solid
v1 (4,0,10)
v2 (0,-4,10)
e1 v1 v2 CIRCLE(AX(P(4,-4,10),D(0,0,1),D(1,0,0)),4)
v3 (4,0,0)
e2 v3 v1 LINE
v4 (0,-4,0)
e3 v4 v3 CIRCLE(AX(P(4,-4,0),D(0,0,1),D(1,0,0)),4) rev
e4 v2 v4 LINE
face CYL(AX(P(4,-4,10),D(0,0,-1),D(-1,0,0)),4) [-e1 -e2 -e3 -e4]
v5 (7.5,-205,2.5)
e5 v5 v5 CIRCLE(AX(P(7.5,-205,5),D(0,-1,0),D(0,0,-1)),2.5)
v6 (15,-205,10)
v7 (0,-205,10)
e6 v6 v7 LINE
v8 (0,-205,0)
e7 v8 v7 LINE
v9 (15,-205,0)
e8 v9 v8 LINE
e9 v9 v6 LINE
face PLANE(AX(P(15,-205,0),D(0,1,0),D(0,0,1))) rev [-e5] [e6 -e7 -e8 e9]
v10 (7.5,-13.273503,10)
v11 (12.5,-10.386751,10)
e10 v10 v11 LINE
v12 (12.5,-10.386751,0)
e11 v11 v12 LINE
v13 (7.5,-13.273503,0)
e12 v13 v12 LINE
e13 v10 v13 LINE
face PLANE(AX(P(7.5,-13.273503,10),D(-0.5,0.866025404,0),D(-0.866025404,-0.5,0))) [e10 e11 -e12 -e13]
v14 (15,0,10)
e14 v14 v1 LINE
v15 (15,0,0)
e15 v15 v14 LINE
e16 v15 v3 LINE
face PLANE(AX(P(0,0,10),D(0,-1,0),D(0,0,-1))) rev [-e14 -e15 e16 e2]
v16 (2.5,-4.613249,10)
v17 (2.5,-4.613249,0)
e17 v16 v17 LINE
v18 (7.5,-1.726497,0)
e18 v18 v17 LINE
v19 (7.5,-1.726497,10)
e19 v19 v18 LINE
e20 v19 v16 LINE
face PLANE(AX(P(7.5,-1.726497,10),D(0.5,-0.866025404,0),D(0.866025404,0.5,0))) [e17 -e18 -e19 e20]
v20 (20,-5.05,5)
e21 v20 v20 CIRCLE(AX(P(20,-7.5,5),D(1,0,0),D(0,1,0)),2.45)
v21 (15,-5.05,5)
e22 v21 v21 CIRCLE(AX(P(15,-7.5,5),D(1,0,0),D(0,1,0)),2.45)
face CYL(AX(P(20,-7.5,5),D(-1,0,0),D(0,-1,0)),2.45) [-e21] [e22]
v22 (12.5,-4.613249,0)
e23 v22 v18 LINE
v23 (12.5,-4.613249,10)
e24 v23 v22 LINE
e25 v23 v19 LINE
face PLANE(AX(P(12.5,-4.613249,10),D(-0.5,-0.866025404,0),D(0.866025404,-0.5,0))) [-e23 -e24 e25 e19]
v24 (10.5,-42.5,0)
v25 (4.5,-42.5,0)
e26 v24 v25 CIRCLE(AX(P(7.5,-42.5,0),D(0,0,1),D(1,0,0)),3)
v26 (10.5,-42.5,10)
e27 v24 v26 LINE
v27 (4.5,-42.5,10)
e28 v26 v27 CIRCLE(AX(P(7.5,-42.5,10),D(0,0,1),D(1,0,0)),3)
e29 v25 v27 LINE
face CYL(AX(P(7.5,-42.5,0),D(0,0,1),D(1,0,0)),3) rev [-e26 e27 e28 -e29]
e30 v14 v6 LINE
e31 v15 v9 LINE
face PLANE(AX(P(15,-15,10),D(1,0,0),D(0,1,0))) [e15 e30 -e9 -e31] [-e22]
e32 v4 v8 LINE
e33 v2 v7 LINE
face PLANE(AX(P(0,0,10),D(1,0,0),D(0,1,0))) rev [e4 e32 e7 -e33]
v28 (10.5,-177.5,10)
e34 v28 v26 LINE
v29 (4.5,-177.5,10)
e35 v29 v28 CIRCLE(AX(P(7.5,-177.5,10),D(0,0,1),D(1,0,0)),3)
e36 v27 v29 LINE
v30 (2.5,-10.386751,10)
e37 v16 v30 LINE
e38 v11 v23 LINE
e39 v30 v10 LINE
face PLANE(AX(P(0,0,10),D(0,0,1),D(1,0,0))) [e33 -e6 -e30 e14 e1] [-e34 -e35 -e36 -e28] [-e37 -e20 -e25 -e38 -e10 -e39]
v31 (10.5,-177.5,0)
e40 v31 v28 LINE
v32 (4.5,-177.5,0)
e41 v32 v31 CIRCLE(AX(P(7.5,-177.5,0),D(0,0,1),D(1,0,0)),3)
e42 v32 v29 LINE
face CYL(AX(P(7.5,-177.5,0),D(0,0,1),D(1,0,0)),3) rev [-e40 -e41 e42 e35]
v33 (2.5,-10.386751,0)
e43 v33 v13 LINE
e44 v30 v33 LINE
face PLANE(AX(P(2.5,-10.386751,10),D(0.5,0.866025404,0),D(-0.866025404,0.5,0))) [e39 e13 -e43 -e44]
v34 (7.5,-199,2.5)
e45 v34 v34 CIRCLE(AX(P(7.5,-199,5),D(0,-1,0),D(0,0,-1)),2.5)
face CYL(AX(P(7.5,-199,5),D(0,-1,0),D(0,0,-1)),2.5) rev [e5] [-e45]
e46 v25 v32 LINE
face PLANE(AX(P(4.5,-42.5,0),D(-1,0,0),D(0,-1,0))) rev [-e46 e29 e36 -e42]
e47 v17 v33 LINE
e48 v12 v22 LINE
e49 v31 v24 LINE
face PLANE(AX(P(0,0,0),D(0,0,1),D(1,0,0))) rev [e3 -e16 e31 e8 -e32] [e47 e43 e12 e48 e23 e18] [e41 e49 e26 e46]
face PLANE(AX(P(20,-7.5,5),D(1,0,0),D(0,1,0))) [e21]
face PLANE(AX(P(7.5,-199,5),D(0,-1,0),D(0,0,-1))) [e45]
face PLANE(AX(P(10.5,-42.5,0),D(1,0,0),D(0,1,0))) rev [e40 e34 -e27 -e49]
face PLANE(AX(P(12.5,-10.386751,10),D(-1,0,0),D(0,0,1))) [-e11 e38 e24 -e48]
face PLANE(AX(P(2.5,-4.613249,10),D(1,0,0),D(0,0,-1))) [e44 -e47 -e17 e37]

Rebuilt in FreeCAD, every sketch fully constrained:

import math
import FreeCAD as App
import Part
import Sketcher
from FreeCAD import Vector
Q = App.Units.Quantity


def edges_at(feature, points):
    """Names of the edges that pass closest to the given points."""
    edges = feature.Shape.Edges
    near = lambda p: min(range(len(edges)), key=lambda i: edges[i].distToShape(Part.Vertex(*p))[0])
    return sorted({f"Edge{near(p) + 1}" for p in points})


def add_polygon(sketch, points):
    """Adds a closed chain of lines whose ends are joined by coincident constraints."""
    first, n = sketch.GeometryCount, len(points)
    for a, b in zip(points, points[1:] + points[:1]):
        sketch.addGeometry(Part.LineSegment(App.Vector(*a, 0), App.Vector(*b, 0)), False)
    for i in range(n):
        sketch.addConstraint(Sketcher.Constraint("Coincident", first + i, 2, first + (i + 1) % n, 1))

doc = App.newDocument("Part")
body = doc.addObject("PartDesign::Body", "Body")

sketch1 = doc.addObject("Sketcher::SketchObject", "Sketch")
body.addObject(sketch1)
sketch1.AttachmentSupport = (doc.XY_Plane, [""])
sketch1.MapMode = "FlatFace"
add_polygon(sketch1, [(0, 0), (0, -220), (220, -220), (220, 0)])
add_polygon(sketch1, [(12.5, -215.386751), (7.5, -218.273503), (2.5, -215.386751), (2.5, -209.613249), (7.5, -206.726497), (12.5, -209.613249)])
add_polygon(sketch1, [(217.5, -215.386751), (212.5, -218.273503), (207.5, -215.386751), (207.5, -209.613249), (212.5, -206.726497), (217.5, -209.613249)])
add_polygon(sketch1, [(205, -205), (15, -205), (15, -15), (205, -15)])
add_polygon(sketch1, [(12.5, -10.386751), (7.5, -13.273503), (2.5, -10.386751), (2.5, -4.613249), (7.5, -1.726497), (12.5, -4.613249)])
add_polygon(sketch1, [(217.5, -10.386751), (212.5, -13.273503), (207.5, -10.386751), (207.5, -4.613249), (212.5, -1.726497), (217.5, -4.613249)])
sketch1.addConstraint([
    Sketcher.Constraint("Vertical", 0),
    Sketcher.Constraint("Horizontal", 1),
    Sketcher.Constraint("Vertical", 2),
    Sketcher.Constraint("Horizontal", 3),
    Sketcher.Constraint("Vertical", 6),
    Sketcher.Constraint("Vertical", 9),
    Sketcher.Constraint("Vertical", 12),
    Sketcher.Constraint("Vertical", 15),
    Sketcher.Constraint("Horizontal", 16),
    Sketcher.Constraint("Vertical", 17),
    Sketcher.Constraint("Horizontal", 18),
    Sketcher.Constraint("Vertical", 19),
    Sketcher.Constraint("Vertical", 22),
    Sketcher.Constraint("Vertical", 25),
    Sketcher.Constraint("Vertical", 28),
    Sketcher.Constraint("Vertical", 31),
    Sketcher.Constraint("Coincident", 3, 2, -1, 1),
    Sketcher.Constraint("Parallel", 4, 7),
    Sketcher.Constraint("Parallel", 5, 8),
    Sketcher.Constraint("Parallel", 7, 10),
    Sketcher.Constraint("Parallel", 8, 11),
    Sketcher.Constraint("Parallel", 10, 13),
    Sketcher.Constraint("Parallel", 11, 14),
    Sketcher.Constraint("Parallel", 13, 20),
    Sketcher.Constraint("Parallel", 14, 21),
    Sketcher.Constraint("Parallel", 20, 23),
    Sketcher.Constraint("Parallel", 21, 24),
    Sketcher.Constraint("Parallel", 23, 26),
    Sketcher.Constraint("Parallel", 24, 27),
    Sketcher.Constraint("Parallel", 26, 29),
    Sketcher.Constraint("Parallel", 27, 30),
    Sketcher.Constraint("Horizontal", 6, 2, 8, 2),
    Sketcher.Constraint("Horizontal", 5, 2, 9, 2),
    Sketcher.Constraint("Horizontal", 4, 2, 10, 2),
    Sketcher.Constraint("Horizontal", 9, 2, 11, 2),
    Sketcher.Constraint("Horizontal", 8, 2, 12, 2),
    Sketcher.Constraint("Horizontal", 7, 2, 13, 2),
    Sketcher.Constraint("Horizontal", 12, 2, 14, 2),
    Sketcher.Constraint("Horizontal", 22, 2, 24, 2),
    Sketcher.Constraint("Horizontal", 21, 2, 25, 2),
    Sketcher.Constraint("Horizontal", 20, 2, 26, 2),
    Sketcher.Constraint("Horizontal", 25, 2, 27, 2),
    Sketcher.Constraint("Horizontal", 24, 2, 28, 2),
    Sketcher.Constraint("Horizontal", 23, 2, 29, 2),
    Sketcher.Constraint("Horizontal", 28, 2, 30, 2),
    Sketcher.Constraint("Vertical", 4, 2, 7, 2),
    Sketcher.Constraint("Vertical", 7, 2, 20, 2),
    Sketcher.Constraint("Vertical", 6, 2, 21, 2),
    Sketcher.Constraint("Vertical", 13, 2, 26, 2),
    Sketcher.Constraint("Equal", 3, 0),
    Sketcher.Constraint("Equal", 18, 17),
    Sketcher.Constraint("Equal", 15, 22),
    Sketcher.Constraint("DistanceX", 1, 1, 1, 2, Q("220 mm")),
    Sketcher.Constraint("DistanceX", 16, 2, 16, 1, Q("190 mm")),
    Sketcher.Constraint("Angle", 4, Q("-150 deg")),
    Sketcher.Constraint("DistanceX", -1, 1, 16, 2, Q("15 mm")),
    Sketcher.Constraint("DistanceY", 16, 2, -1, 1, Q("205 mm")),
    Sketcher.Constraint("DistanceX", 5, 2, 4, 2, Q("5 mm")),
    Sketcher.Constraint("DistanceX", 9, 2, 10, 2, Q("200 mm")),
    Sketcher.Constraint("DistanceX", -1, 1, 4, 2, Q("7.5 mm")),
    Sketcher.Constraint("DistanceY", 6, 1, 6, 2, Q("5.773503 mm")),
    Sketcher.Constraint("DistanceY", 5, 2, -1, 1, Q("215.386751 mm")),
    Sketcher.Constraint("DistanceY", 21, 2, -1, 1, Q("10.386751 mm")),
])
pad1 = doc.addObject("PartDesign::Pad", "Pad")
body.addObject(pad1)
pad1.Profile = sketch1
pad1.Length = 10
doc.recompute()

fillet = doc.addObject("PartDesign::Fillet", "Fillet")
body.addObject(fillet)
fillet.Base = (pad1, edges_at(pad1, [
    (0, 0, 5),
    (220, 0, 5),
    (220, -220, 5),
    (0, -220, 5),
]))
fillet.Radius = 4

sketch2 = doc.addObject("Sketcher::SketchObject", "Sketch001")
body.addObject(sketch2)
sketch2.AttachmentSupport = (doc.XY_Plane, [""])
sketch2.MapMode = "FlatFace"
sketch2.AttachmentOffset = App.Placement(Vector(0, 0, 10), App.Rotation())
sketch2.addGeometry([
    Part.LineSegment(Vector(177.5, -4.5, 0), Vector(42.5, -4.5, 0)),
    Part.ArcOfCircle(Part.Circle(Vector(42.5, -7.5, 0), Vector(0, 0, 1), 3), math.radians(90), math.radians(270)),
    Part.LineSegment(Vector(42.5, -10.5, 0), Vector(177.5, -10.5, 0)),
    Part.ArcOfCircle(Part.Circle(Vector(177.5, -7.5, 0), Vector(0, 0, 1), 3), math.radians(-90), math.radians(90)),
    Part.LineSegment(Vector(42.5, -215.5, 0), Vector(177.5, -215.5, 0)),
    Part.ArcOfCircle(Part.Circle(Vector(177.5, -212.5, 0), Vector(0, 0, 1), 3), math.radians(-90), math.radians(90)),
    Part.LineSegment(Vector(177.5, -209.5, 0), Vector(42.5, -209.5, 0)),
    Part.ArcOfCircle(Part.Circle(Vector(42.5, -212.5, 0), Vector(0, 0, 1), 3), math.radians(90), math.radians(270)),
], False)
sketch2.addConstraint([
    Sketcher.Constraint("Tangent", 0, 2, 1, 1),
    Sketcher.Constraint("Tangent", 1, 2, 2, 1),
    Sketcher.Constraint("Tangent", 2, 2, 3, 1),
    Sketcher.Constraint("Tangent", 3, 2, 0, 1),
    Sketcher.Constraint("Tangent", 4, 2, 5, 1),
    Sketcher.Constraint("Tangent", 5, 2, 6, 1),
    Sketcher.Constraint("Tangent", 6, 2, 7, 1),
    Sketcher.Constraint("Tangent", 7, 2, 4, 1),
    Sketcher.Constraint("Horizontal", 0),
    Sketcher.Constraint("Horizontal", 2),
    Sketcher.Constraint("Horizontal", 4),
    Sketcher.Constraint("Horizontal", 6),
    Sketcher.Constraint("Equal", 3, 5),
    Sketcher.Constraint("Vertical", 3, 3, 5, 3),
    Sketcher.Constraint("Vertical", 1, 3, 7, 3),
    Sketcher.Constraint("Radius", 1, Q("3 mm")),
    Sketcher.Constraint("DistanceX", 0, 2, 0, 1, Q("135 mm")),
    Sketcher.Constraint("DistanceY", 5, 3, 3, 3, Q("205 mm")),
    Sketcher.Constraint("DistanceX", -1, 1, 1, 3, Q("42.5 mm")),
    Sketcher.Constraint("DistanceY", 1, 3, -1, 1, Q("7.5 mm")),
])
pocket1 = doc.addObject("PartDesign::Pocket", "Pocket")
body.addObject(pocket1)
pocket1.Profile = sketch2
pocket1.Length = 10

sketch3 = doc.addObject("Sketcher::SketchObject", "Sketch002")
body.addObject(sketch3)
sketch3.AttachmentSupport = (doc.XY_Plane, [""])
sketch3.MapMode = "FlatFace"
sketch3.AttachmentOffset = App.Placement(Vector(0, 0, 10), App.Rotation())
sketch3.addGeometry([
    Part.LineSegment(Vector(10.5, -177.5, 0), Vector(10.5, -42.5, 0)),
    Part.ArcOfCircle(Part.Circle(Vector(7.5, -42.5, 0), Vector(0, 0, 1), 3), math.radians(0), math.radians(180)),
    Part.LineSegment(Vector(4.5, -42.5, 0), Vector(4.5, -177.5, 0)),
    Part.ArcOfCircle(Part.Circle(Vector(7.5, -177.5, 0), Vector(0, 0, 1), 3), math.radians(180), math.radians(360)),
    Part.LineSegment(Vector(209.5, -42.5, 0), Vector(209.5, -177.5, 0)),
    Part.ArcOfCircle(Part.Circle(Vector(212.5, -177.5, 0), Vector(0, 0, 1), 3), math.radians(180), math.radians(360)),
    Part.LineSegment(Vector(215.5, -177.5, 0), Vector(215.5, -42.5, 0)),
    Part.ArcOfCircle(Part.Circle(Vector(212.5, -42.5, 0), Vector(0, 0, 1), 3), math.radians(0), math.radians(180)),
], False)
sketch3.addConstraint([
    Sketcher.Constraint("Tangent", 0, 2, 1, 1),
    Sketcher.Constraint("Tangent", 1, 2, 2, 1),
    Sketcher.Constraint("Tangent", 2, 2, 3, 1),
    Sketcher.Constraint("Tangent", 3, 2, 0, 1),
    Sketcher.Constraint("Tangent", 4, 2, 5, 1),
    Sketcher.Constraint("Tangent", 5, 2, 6, 1),
    Sketcher.Constraint("Tangent", 6, 2, 7, 1),
    Sketcher.Constraint("Tangent", 7, 2, 4, 1),
    Sketcher.Constraint("Vertical", 0),
    Sketcher.Constraint("Vertical", 2),
    Sketcher.Constraint("Vertical", 4),
    Sketcher.Constraint("Vertical", 6),
    Sketcher.Constraint("Equal", 3, 5),
    Sketcher.Constraint("Horizontal", 3, 3, 5, 3),
    Sketcher.Constraint("Horizontal", 1, 3, 7, 3),
    Sketcher.Constraint("Radius", 1, Q("3 mm")),
    Sketcher.Constraint("DistanceY", 0, 1, 0, 2, Q("135 mm")),
    Sketcher.Constraint("DistanceX", 3, 3, 5, 3, Q("205 mm")),
    Sketcher.Constraint("DistanceX", -1, 1, 1, 3, Q("7.5 mm")),
    Sketcher.Constraint("DistanceY", 1, 3, -1, 1, Q("42.5 mm")),
])
pocket2 = doc.addObject("PartDesign::Pocket", "Pocket001")
body.addObject(pocket2)
pocket2.Profile = sketch3
pocket2.Length = 10

sketch4 = doc.addObject("Sketcher::SketchObject", "Sketch003")
body.addObject(sketch4)
sketch4.AttachmentSupport = (doc.XY_Plane, [""])
sketch4.MapMode = "FlatFace"
sketch4.AttachmentOffset = App.Placement(Vector(0, 0, 10), App.Rotation())
add_polygon(sketch4, [(15, 0), (15, -220), (229.832401, -220), (229.832401, 0)])
sketch4.addConstraint([
    Sketcher.Constraint("Vertical", 0),
    Sketcher.Constraint("Horizontal", 1),
    Sketcher.Constraint("Vertical", 2),
    Sketcher.Constraint("Horizontal", 3),
    Sketcher.Constraint("PointOnObject", 2, 2, -1),
    Sketcher.Constraint("DistanceY", 0, 2, 0, 1, Q("220 mm")),
    Sketcher.Constraint("DistanceX", -1, 1, 0, 2, Q("15 mm")),
    Sketcher.Constraint("DistanceX", 1, 1, 1, 2, Q("214.832401 mm")),
])
pocket3 = doc.addObject("PartDesign::Pocket", "Pocket002")
body.addObject(pocket3)
pocket3.Profile = sketch4
pocket3.Length = 10

sketch5 = doc.addObject("Sketcher::SketchObject", "Sketch004")
body.addObject(sketch5)
sketch5.AttachmentSupport = (doc.YZ_Plane, [""])
sketch5.MapMode = "FlatFace"
sketch5.AttachmentOffset = App.Placement(Vector(0, 0, 15), App.Rotation())
sketch5.addGeometry(Part.Circle(Vector(-7.5, 5, 0), Vector(0, 0, 1), 2.45), False)
sketch5.addConstraint([
    Sketcher.Constraint("Diameter", 0, Q("4.9 mm")),
    Sketcher.Constraint("DistanceY", -1, 1, 0, 3, Q("5 mm")),
    Sketcher.Constraint("DistanceX", 0, 3, -1, 1, Q("7.5 mm")),
])
pad2 = doc.addObject("PartDesign::Pad", "Pad001")
body.addObject(pad2)
pad2.Profile = sketch5
pad2.Length = 5

sketch6 = doc.addObject("Sketcher::SketchObject", "Sketch005")
body.addObject(sketch6)
sketch6.AttachmentSupport = (doc.XY_Plane, [""])
sketch6.MapMode = "FlatFace"
sketch6.AttachmentOffset = App.Placement(Vector(0, 0, 10), App.Rotation())
add_polygon(sketch6, [(0, -205), (0, -220), (15, -220), (15, -205)])
sketch6.addConstraint([
    Sketcher.Constraint("Vertical", 0),
    Sketcher.Constraint("Horizontal", 1),
    Sketcher.Constraint("Vertical", 2),
    Sketcher.Constraint("Horizontal", 3),
    Sketcher.Constraint("PointOnObject", 0, 2, -2),
    Sketcher.Constraint("Equal", 3, 0),
    Sketcher.Constraint("DistanceX", 1, 1, 1, 2, Q("15 mm")),
    Sketcher.Constraint("DistanceY", 0, 2, -1, 1, Q("220 mm")),
])
pocket4 = doc.addObject("PartDesign::Pocket", "Pocket003")
body.addObject(pocket4)
pocket4.Profile = sketch6
pocket4.Length = 10

sketch7 = doc.addObject("Sketcher::SketchObject", "Sketch006")
body.addObject(sketch7)
sketch7.AttachmentSupport = (doc.XZ_Plane, [""])
sketch7.MapMode = "FlatFace"
sketch7.AttachmentOffset = App.Placement(Vector(0, 0, 205), App.Rotation())
sketch7.addGeometry(Part.Circle(Vector(7.5, 5, 0), Vector(0, 0, 1), 2.5), False)
sketch7.addConstraint([
    Sketcher.Constraint("Diameter", 0, Q("5 mm")),
    Sketcher.Constraint("DistanceY", -1, 1, 0, 3, Q("5 mm")),
    Sketcher.Constraint("DistanceX", -1, 1, 0, 3, Q("7.5 mm")),
])
pocket5 = doc.addObject("PartDesign::Pocket", "Pocket004")
body.addObject(pocket5)
pocket5.Profile = sketch7
pocket5.Length = 6

doc.recompute()
